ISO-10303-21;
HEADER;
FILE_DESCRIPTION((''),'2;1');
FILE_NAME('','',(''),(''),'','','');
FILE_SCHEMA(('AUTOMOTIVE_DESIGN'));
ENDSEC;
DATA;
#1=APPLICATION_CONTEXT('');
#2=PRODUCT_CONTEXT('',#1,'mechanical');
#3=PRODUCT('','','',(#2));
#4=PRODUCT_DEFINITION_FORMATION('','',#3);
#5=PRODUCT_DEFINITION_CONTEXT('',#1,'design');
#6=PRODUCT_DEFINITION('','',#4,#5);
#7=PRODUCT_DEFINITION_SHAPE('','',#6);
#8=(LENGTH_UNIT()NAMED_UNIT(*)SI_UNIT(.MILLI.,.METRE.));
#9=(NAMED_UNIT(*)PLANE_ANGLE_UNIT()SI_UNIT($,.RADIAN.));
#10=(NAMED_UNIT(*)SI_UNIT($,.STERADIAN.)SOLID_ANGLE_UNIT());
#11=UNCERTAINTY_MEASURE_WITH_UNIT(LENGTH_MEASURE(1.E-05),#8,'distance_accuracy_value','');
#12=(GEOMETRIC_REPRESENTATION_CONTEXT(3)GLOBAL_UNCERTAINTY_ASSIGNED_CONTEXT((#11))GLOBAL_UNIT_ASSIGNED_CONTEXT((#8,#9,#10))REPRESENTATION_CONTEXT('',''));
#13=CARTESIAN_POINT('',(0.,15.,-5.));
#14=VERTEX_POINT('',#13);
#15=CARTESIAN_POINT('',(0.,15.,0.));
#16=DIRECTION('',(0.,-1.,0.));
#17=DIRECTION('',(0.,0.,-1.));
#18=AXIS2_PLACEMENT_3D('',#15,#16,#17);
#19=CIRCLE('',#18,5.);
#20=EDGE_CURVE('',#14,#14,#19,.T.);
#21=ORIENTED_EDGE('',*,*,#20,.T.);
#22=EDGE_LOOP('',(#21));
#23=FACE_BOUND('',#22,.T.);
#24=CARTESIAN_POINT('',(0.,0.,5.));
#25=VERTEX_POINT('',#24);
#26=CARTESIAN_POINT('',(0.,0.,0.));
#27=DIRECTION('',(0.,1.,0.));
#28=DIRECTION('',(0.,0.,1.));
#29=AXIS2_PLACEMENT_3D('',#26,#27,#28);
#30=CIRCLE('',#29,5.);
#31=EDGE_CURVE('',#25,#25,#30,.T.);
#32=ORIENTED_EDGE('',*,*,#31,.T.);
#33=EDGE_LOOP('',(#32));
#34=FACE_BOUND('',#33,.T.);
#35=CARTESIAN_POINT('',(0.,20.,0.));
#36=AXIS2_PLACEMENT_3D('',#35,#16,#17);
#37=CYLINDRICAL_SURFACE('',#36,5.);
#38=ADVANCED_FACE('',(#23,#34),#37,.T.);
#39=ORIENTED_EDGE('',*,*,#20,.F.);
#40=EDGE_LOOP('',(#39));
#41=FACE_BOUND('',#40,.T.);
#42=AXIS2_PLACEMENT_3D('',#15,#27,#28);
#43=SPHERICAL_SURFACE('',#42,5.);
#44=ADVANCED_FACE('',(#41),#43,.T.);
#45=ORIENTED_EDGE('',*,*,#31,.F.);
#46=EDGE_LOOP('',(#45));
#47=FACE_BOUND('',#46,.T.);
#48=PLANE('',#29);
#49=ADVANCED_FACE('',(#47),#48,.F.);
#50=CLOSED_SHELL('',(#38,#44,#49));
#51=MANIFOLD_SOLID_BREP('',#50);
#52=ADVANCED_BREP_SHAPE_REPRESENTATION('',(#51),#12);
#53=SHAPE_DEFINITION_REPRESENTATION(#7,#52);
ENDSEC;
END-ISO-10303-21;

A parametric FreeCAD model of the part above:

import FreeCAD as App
import Part
import Sketcher
Q = App.Units.Quantity


def edges_at(feature, points):
    """Names of the edges that pass closest to the given points."""
    edges = feature.Shape.Edges
    near = lambda p: min(range(len(edges)), key=lambda i: edges[i].distToShape(Part.Vertex(*p))[0])
    return sorted({f"Edge{near(p) + 1}" for p in points})

doc = App.newDocument("Part")
body = doc.addObject("PartDesign::Body", "Body")

# Sketch on XZ plane
sketch1 = body.newObject("Sketcher::SketchObject", "Sketch")
sketch1.AttachmentSupport = (doc.getObject("XZ_Plane"), [""])
sketch1.MapMode = "FlatFace"
sketch1.addGeometry(Part.Circle(App.Vector(0, 0, 0), App.Vector(0, 0, 1), 5), False)
sketch1.addConstraint(Sketcher.Constraint("Coincident", 0, 3, -1, 1))
sketch1.addConstraint(Sketcher.Constraint("Diameter", 0, Q("10 mm")))
pad1 = body.newObject("PartDesign::Pad", "Pad")
pad1.Profile = sketch1
pad1.Length = 20
pad1.Reversed = True
doc.recompute()

fillet = body.newObject("PartDesign::Fillet", "Fillet")
fillet.Base = (pad1, edges_at(pad1, [(0, 20, -5)]))
fillet.Radius = 5

doc.recompute()
